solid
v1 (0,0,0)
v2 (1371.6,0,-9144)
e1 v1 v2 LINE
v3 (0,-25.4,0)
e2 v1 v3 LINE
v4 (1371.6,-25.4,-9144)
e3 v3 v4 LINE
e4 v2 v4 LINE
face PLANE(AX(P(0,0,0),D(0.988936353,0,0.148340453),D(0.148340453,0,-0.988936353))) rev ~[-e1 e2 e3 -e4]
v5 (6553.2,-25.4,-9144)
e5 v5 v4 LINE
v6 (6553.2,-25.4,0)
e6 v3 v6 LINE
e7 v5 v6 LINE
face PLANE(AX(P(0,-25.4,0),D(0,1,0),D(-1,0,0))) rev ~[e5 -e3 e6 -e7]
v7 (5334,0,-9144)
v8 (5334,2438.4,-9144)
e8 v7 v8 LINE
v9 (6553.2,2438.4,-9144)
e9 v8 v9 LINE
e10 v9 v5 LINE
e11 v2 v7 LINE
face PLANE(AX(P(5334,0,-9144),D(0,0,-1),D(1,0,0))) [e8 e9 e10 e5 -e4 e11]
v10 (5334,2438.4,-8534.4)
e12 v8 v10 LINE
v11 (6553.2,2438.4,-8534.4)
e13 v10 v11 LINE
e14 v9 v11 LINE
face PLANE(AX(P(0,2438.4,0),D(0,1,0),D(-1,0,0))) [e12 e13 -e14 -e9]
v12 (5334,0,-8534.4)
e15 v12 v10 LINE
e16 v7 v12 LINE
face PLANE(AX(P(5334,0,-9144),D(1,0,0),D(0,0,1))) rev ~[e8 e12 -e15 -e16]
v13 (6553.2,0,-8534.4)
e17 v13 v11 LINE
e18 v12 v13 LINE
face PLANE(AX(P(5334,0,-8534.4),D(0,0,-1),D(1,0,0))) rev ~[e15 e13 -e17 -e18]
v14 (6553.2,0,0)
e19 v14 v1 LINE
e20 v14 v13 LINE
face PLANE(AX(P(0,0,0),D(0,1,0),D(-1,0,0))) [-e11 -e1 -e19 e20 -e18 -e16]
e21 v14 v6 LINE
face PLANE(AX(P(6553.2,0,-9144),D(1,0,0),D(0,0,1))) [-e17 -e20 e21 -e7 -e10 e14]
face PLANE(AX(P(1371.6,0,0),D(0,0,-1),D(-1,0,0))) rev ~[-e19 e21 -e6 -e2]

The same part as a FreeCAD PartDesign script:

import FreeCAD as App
import Part
import Sketcher

V = App.Vector
Q = App.Units.Quantity


def add_polygon(sketch, points):
    """Adds a closed chain of lines whose ends are joined by coincident constraints."""
    first, n = sketch.GeometryCount, len(points)
    for a, b in zip(points, points[1:] + points[:1]):
        sketch.addGeometry(Part.LineSegment(App.Vector(*a, 0), App.Vector(*b, 0)), False)
    for i in range(n):
        sketch.addConstraint(Sketcher.Constraint("Coincident", first + i, 2, first + (i + 1) % n, 1))

doc = App.newDocument("Part")
body = doc.addObject("PartDesign::Body", "Body")

# Sketch on XZ plane
sketch1 = body.newObject("Sketcher::SketchObject", "Sketch")
sketch1.AttachmentSupport = (doc.getObject("XZ_Plane"), [""])
sketch1.MapMode = "FlatFace"
add_polygon(sketch1, [(1372, -9144), (0, 0), (6553, 0), (6553, -9144)])  # lines 0-3
sketch1.addConstraint([
    Sketcher.Constraint("Horizontal", 1),
    Sketcher.Constraint("Vertical", 2),
    Sketcher.Constraint("Horizontal", 3),
    Sketcher.Constraint("Coincident", 0, 2, -1, 1),
    Sketcher.Constraint("DistanceX", 3, 2, 3, 1, Q("204 in")),
    Sketcher.Constraint("DistanceY", 2, 2, 2, 1, Q("360 in")),
    Sketcher.Constraint("DistanceX", -1, 1, 3, 2, Q("54 in")),
])
pad1 = body.newObject("PartDesign::Pad", "Pad")
pad1.Profile = sketch1
pad1.Length = Q("1 in")

# Sketch on XZ plane
sketch2 = body.newObject("Sketcher::SketchObject", "Sketch001")
sketch2.AttachmentSupport = (doc.getObject("XZ_Plane"), [""])
sketch2.MapMode = "FlatFace"
add_polygon(sketch2, [(6553, -9144), (5334, -9144), (5334, -8534), (6553, -8534)])  # lines 0-3
sketch2.addConstraint([
    Sketcher.Constraint("Horizontal", 0),
    Sketcher.Constraint("Vertical", 1),
    Sketcher.Constraint("Horizontal", 2),
    Sketcher.Constraint("Vertical", 3),
    Sketcher.Constraint("DistanceX", 0, 2, 0, 1, Q("48 in")),
    Sketcher.Constraint("DistanceY", 1, 1, 1, 2, Q("24 in")),
    Sketcher.Constraint("DistanceY", 0, 2, -1, 1, Q("360 in")),
    Sketcher.Constraint("DistanceX", -1, 1, 0, 2, Q("210 in")),
])
pad2 = body.newObject("PartDesign::Pad", "Pad001")
pad2.Profile = sketch2
pad2.Length = Q("96 in")
pad2.Reversed = True

doc.recompute()
